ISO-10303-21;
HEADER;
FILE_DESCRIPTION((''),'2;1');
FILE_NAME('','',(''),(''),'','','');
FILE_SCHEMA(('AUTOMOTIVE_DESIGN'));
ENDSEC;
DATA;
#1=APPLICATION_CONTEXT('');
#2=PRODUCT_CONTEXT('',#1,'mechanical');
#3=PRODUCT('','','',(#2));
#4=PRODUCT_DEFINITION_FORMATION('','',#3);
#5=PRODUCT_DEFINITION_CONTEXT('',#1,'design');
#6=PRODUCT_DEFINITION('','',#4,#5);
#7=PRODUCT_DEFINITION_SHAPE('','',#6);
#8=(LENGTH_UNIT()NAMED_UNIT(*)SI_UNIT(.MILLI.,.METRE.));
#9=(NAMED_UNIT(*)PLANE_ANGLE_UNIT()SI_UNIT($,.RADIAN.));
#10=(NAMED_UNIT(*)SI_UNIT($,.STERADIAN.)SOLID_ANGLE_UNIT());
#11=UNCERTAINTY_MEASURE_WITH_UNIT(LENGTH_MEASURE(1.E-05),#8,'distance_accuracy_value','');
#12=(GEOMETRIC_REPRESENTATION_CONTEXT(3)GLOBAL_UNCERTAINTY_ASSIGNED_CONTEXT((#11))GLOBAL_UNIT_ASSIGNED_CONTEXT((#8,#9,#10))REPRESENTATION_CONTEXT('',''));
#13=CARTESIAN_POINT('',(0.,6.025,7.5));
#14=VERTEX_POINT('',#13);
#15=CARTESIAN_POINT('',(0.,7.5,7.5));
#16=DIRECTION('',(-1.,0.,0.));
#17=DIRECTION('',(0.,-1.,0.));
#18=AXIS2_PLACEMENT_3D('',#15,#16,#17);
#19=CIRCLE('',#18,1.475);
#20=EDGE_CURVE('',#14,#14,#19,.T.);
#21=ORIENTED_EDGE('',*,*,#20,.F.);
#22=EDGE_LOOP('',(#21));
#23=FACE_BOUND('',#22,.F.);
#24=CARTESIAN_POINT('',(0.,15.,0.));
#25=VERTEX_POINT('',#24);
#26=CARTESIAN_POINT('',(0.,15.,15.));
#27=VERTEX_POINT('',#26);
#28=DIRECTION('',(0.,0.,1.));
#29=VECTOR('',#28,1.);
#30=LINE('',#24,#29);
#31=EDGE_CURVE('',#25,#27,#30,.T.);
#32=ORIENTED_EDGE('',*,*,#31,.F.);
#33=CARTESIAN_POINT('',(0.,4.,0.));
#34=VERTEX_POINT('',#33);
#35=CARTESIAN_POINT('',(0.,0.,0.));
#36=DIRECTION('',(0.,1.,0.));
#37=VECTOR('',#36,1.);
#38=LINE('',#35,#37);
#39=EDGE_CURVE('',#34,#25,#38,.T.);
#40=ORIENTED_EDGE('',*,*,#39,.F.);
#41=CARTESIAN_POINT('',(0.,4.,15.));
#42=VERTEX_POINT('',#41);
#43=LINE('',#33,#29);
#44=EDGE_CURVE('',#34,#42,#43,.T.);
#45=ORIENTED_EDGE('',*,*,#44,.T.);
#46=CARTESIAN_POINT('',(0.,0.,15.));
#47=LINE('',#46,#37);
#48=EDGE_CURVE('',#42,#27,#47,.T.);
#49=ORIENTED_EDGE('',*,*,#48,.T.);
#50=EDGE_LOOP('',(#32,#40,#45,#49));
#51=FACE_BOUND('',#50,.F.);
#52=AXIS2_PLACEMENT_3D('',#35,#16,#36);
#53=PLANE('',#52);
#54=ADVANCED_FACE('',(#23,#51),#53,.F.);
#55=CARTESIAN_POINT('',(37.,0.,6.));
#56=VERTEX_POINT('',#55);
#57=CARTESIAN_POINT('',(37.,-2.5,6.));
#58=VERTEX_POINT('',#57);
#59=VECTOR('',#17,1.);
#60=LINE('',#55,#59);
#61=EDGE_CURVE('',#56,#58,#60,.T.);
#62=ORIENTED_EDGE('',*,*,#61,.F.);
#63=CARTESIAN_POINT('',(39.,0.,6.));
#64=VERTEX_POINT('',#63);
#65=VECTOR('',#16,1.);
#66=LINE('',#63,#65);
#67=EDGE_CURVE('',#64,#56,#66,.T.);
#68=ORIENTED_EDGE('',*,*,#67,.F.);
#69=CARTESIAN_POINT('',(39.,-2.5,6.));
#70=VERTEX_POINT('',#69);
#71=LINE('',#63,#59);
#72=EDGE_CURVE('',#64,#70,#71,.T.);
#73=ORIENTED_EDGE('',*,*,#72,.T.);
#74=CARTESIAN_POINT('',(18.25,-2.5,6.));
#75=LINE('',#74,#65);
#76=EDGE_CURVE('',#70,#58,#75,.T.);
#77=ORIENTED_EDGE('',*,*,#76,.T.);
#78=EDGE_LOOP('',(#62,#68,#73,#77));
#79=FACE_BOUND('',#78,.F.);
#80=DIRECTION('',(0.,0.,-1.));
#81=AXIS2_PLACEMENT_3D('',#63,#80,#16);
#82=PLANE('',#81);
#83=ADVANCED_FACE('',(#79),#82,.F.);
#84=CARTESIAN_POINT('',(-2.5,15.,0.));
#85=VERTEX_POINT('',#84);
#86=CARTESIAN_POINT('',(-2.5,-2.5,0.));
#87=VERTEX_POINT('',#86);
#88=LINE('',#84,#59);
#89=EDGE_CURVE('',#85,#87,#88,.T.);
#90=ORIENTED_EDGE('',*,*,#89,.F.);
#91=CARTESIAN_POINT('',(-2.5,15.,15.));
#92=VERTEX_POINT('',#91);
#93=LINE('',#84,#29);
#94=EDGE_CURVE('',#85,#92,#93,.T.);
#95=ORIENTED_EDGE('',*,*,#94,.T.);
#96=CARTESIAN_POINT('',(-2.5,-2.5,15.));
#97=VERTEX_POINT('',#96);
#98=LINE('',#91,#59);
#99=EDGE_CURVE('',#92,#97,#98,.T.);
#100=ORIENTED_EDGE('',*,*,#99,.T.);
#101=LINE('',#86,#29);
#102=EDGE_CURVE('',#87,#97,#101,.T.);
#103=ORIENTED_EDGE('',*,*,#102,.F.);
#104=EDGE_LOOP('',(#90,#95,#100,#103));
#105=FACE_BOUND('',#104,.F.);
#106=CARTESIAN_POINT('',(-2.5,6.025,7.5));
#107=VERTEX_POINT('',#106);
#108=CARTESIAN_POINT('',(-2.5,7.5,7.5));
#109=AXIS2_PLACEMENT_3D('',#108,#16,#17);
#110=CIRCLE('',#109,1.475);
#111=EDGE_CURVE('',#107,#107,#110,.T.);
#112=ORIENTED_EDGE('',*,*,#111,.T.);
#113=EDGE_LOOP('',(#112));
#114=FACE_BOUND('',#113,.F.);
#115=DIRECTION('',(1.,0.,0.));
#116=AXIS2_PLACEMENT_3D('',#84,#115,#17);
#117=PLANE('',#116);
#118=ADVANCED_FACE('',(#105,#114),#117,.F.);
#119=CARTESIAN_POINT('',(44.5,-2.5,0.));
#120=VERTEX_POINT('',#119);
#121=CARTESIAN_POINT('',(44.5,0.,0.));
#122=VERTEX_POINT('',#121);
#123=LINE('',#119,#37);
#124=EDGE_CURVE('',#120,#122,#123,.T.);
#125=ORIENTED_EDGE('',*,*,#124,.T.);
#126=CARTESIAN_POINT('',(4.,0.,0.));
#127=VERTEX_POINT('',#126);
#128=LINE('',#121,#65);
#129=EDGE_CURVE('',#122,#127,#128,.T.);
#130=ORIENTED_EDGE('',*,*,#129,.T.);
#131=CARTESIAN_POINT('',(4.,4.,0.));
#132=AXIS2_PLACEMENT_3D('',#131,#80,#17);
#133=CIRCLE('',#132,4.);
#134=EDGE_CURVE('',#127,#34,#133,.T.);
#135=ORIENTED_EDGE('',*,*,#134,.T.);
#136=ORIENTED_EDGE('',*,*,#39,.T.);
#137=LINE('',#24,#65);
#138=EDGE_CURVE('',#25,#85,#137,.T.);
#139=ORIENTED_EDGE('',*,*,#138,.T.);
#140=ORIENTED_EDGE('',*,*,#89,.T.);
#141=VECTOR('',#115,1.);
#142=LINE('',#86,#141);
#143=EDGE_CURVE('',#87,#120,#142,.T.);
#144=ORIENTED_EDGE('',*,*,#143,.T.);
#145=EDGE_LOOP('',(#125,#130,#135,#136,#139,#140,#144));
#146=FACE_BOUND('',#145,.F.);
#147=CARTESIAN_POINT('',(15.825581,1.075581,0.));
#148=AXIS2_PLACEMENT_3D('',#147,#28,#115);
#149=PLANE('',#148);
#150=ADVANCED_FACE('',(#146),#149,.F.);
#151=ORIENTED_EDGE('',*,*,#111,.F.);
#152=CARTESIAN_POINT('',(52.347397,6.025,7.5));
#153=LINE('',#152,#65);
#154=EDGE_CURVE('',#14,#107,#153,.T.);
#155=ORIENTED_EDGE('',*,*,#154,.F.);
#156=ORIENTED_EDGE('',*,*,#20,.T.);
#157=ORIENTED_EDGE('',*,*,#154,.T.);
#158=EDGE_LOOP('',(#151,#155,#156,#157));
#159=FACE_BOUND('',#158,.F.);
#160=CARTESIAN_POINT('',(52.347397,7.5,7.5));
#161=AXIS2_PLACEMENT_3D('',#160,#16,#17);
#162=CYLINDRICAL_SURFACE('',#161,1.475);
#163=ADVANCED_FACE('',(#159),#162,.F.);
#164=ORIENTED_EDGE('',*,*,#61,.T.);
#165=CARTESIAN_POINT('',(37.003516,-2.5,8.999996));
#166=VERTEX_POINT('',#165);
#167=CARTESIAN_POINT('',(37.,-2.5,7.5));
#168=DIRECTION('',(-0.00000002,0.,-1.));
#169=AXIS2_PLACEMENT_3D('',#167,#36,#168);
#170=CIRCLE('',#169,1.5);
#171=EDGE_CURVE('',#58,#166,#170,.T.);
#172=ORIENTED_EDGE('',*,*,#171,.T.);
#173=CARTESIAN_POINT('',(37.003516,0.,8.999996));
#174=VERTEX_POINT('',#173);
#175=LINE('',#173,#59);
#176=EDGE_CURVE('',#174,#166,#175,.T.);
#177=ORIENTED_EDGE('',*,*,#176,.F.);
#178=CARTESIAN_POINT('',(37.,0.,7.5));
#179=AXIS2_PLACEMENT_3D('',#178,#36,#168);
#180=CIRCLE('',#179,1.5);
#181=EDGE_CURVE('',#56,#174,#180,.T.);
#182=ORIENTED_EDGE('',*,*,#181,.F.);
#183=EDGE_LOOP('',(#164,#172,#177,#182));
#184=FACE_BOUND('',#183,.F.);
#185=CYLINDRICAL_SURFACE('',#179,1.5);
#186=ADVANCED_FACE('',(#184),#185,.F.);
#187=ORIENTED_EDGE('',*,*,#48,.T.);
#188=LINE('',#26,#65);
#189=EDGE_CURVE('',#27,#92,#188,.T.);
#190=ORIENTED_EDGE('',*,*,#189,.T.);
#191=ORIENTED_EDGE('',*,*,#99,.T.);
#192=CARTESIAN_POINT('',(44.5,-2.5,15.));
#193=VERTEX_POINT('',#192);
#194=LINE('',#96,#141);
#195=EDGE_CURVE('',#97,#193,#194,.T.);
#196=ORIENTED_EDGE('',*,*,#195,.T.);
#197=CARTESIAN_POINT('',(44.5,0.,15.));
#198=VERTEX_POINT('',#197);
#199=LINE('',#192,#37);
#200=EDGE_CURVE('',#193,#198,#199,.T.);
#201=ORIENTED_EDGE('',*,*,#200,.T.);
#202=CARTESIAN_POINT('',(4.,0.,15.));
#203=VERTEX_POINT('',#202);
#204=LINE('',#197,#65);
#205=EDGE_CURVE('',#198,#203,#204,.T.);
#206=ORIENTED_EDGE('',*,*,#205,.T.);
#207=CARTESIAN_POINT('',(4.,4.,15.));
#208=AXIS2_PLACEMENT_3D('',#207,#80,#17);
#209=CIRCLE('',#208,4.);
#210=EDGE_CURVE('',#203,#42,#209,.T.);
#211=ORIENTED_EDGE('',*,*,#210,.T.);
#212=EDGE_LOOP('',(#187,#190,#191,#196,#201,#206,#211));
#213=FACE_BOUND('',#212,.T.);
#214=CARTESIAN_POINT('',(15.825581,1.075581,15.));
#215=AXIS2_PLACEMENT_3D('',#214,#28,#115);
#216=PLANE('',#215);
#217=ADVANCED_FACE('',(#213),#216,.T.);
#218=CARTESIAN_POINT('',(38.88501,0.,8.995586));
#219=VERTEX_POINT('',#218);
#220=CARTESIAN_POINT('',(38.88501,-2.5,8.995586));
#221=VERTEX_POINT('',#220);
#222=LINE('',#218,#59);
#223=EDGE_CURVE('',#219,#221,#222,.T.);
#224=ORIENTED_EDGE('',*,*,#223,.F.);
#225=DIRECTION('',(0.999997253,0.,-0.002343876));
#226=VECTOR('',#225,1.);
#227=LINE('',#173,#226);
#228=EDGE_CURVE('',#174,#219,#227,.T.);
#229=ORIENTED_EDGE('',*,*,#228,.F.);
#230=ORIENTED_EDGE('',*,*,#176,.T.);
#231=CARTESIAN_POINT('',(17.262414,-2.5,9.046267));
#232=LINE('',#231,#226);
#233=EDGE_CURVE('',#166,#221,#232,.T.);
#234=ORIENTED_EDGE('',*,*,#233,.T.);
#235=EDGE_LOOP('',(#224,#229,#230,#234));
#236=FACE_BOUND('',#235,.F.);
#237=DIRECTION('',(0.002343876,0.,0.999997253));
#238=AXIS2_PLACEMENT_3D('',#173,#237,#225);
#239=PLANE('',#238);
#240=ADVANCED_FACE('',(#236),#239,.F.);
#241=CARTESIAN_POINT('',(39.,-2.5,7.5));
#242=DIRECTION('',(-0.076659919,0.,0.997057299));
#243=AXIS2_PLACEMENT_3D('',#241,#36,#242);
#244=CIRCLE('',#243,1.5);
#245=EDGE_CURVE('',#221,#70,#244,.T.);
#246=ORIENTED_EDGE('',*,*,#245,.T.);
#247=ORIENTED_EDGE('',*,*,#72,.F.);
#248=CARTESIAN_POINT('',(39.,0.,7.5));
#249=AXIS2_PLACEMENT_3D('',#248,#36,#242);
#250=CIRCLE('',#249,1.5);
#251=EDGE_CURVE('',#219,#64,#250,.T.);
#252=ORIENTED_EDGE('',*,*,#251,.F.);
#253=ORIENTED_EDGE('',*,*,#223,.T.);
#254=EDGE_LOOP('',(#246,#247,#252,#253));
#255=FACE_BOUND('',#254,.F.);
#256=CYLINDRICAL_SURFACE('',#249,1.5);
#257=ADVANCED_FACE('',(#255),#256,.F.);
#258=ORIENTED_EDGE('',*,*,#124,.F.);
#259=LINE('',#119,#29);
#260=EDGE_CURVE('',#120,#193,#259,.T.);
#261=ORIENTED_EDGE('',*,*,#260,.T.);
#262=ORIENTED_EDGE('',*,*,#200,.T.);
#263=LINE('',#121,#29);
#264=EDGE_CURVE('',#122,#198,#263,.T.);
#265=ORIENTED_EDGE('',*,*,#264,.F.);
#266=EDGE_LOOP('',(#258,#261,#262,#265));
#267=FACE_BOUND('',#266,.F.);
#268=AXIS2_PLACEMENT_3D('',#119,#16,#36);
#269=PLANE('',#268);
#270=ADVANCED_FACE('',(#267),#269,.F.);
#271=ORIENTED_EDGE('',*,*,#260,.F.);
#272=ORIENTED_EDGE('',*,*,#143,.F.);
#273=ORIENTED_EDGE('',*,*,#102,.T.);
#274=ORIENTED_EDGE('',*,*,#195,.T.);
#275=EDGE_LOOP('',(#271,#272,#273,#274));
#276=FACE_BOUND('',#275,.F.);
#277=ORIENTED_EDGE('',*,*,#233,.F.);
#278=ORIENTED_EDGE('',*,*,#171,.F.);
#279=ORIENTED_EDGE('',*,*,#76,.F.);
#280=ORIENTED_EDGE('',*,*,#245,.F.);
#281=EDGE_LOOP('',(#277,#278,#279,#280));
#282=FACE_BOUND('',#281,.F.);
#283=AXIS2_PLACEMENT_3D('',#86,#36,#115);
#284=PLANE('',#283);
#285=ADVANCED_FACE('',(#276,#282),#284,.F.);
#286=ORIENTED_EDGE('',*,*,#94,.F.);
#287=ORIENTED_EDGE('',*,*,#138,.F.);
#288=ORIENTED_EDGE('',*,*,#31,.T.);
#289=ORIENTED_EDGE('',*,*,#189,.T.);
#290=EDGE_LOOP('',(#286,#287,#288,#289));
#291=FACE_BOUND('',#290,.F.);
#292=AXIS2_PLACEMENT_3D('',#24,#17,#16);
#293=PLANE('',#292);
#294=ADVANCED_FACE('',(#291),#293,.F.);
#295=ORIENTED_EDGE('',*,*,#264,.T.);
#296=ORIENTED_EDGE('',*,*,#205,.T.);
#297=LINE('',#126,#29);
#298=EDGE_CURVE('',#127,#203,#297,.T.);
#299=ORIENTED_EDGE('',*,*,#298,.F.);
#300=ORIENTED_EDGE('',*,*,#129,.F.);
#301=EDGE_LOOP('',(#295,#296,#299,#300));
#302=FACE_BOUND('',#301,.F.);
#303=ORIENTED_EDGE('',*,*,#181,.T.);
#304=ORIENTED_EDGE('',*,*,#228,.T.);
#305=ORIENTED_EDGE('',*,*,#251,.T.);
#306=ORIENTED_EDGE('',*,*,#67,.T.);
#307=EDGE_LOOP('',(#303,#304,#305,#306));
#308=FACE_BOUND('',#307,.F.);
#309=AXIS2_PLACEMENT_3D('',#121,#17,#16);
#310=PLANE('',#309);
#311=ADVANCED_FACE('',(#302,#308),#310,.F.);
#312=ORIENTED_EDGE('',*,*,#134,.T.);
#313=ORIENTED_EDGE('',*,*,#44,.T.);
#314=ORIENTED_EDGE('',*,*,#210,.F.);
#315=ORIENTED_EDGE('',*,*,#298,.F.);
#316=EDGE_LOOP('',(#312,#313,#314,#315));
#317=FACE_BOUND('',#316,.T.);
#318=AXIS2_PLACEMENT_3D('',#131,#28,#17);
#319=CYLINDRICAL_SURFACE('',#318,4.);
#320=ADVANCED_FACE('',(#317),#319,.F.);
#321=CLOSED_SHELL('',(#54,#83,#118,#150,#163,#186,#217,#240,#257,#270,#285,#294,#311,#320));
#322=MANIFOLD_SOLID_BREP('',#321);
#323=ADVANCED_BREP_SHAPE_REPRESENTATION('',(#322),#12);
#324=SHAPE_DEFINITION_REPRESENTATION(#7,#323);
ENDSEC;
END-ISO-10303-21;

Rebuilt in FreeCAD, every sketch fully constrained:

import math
import FreeCAD as App
import Part
import Sketcher
from FreeCAD import Vector
Q = App.Units.Quantity


def edges_at(feature, points):
    """Names of the edges that pass closest to the given points."""
    edges = feature.Shape.Edges
    near = lambda p: min(range(len(edges)), key=lambda i: edges[i].distToShape(Part.Vertex(*p))[0])
    return sorted({f"Edge{near(p) + 1}" for p in points})

doc = App.newDocument("Part")
body = doc.addObject("PartDesign::Body", "Body")

# Sketch on XY plane
sketch1 = body.newObject("Sketcher::SketchObject", "Sketch")
sketch1.AttachmentSupport = (doc.getObject("XY_Plane"), [""])
sketch1.MapMode = "FlatFace"
sketch1.addGeometry(Part.LineSegment(Vector(44.5, 0, 0), Vector(0, 0, 0)), False)
sketch1.addGeometry(Part.LineSegment(Vector(0, 0, 0), Vector(0, 15, 0)), False)
sketch1.addGeometry(Part.LineSegment(Vector(0, 15, 0), Vector(-2.5, 15, 0)), False)
sketch1.addGeometry(Part.LineSegment(Vector(-2.5, 15, 0), Vector(-2.5, -2.5, 0)), False)
sketch1.addGeometry(Part.LineSegment(Vector(-2.5, -2.5, 0), Vector(44.5, -2.5, 0)), False)
sketch1.addGeometry(Part.LineSegment(Vector(44.5, -2.5, 0), Vector(44.5, 0, 0)), False)
sketch1.addConstraint(Sketcher.Constraint("Coincident", 0, 2, 1, 1))
sketch1.addConstraint(Sketcher.Constraint("Coincident", 1, 2, 2, 1))
sketch1.addConstraint(Sketcher.Constraint("Coincident", 2, 2, 3, 1))
sketch1.addConstraint(Sketcher.Constraint("Coincident", 3, 2, 4, 1))
sketch1.addConstraint(Sketcher.Constraint("Coincident", 4, 2, 5, 1))
sketch1.addConstraint(Sketcher.Constraint("Coincident", 5, 2, 0, 1))
sketch1.addConstraint(Sketcher.Constraint("Horizontal", 0))
sketch1.addConstraint(Sketcher.Constraint("Vertical", 1))
sketch1.addConstraint(Sketcher.Constraint("Horizontal", 2))
sketch1.addConstraint(Sketcher.Constraint("Vertical", 3))
sketch1.addConstraint(Sketcher.Constraint("Horizontal", 4))
sketch1.addConstraint(Sketcher.Constraint("Vertical", 5))
sketch1.addConstraint(Sketcher.Constraint("Coincident", 0, 2, -1, 1))
sketch1.addConstraint(Sketcher.Constraint("Equal", 2, 5))
sketch1.addConstraint(Sketcher.Constraint("DistanceX", 4, 1, 4, 2, Q("47 mm")))
sketch1.addConstraint(Sketcher.Constraint("DistanceY", 1, 1, 1, 2, Q("15 mm")))
sketch1.addConstraint(Sketcher.Constraint("DistanceX", 0, 2, 0, 1, Q("44.5 mm")))
pad1 = body.newObject("PartDesign::Pad", "Pad")
pad1.Profile = sketch1
pad1.Length = 15

# Sketch on YZ plane
sketch2 = body.newObject("Sketcher::SketchObject", "Sketch001")
sketch2.AttachmentSupport = (doc.getObject("YZ_Plane"), [""])
sketch2.MapMode = "FlatFace"
sketch2.addGeometry(Part.Circle(Vector(7.5, 7.5, 0), Vector(0, 0, 1), 1.475), False)
sketch2.addConstraint(Sketcher.Constraint("Diameter", 0, Q("2.95 mm")))
sketch2.addConstraint(Sketcher.Constraint("DistanceX", -1, 1, 0, 3, Q("7.5 mm")))
sketch2.addConstraint(Sketcher.Constraint("DistanceY", -1, 1, 0, 3, Q("7.5 mm")))
doc.recompute()
hole = body.newObject("PartDesign::Hole", "Hole")
hole.Profile = sketch2
hole.ThreadType = "None"
hole.Diameter = 2.95
hole.DepthType = "ThroughAll"
doc.recompute()

fillet = body.newObject("PartDesign::Fillet", "Fillet")
fillet.Base = (hole, edges_at(hole, [(0, 0, 7.5)]))
fillet.Radius = 4

# Sketch on XZ plane
sketch3 = body.newObject("Sketcher::SketchObject", "Sketch002")
sketch3.AttachmentSupport = (doc.getObject("XZ_Plane"), [""])
sketch3.MapMode = "FlatFace"
sketch3.addGeometry(Part.LineSegment(Vector(39, 6, 0), Vector(37, 6, 0)), False)
sketch3.addGeometry(Part.ArcOfCircle(Part.Circle(Vector(37, 7.5, 0), Vector(0, 0, 1), 1.5), math.radians(89.8657), math.radians(269.999999)), False)
sketch3.addGeometry(Part.LineSegment(Vector(37.003516, 8.999996, 0), Vector(38.88501, 8.995586, 0)), False)
sketch3.addGeometry(Part.ArcOfCircle(Part.Circle(Vector(39, 7.5, 0), Vector(0, 0, 1), 1.5), math.radians(-89.999995), math.radians(94.396603)), False)
sketch3.addConstraint(Sketcher.Constraint("Tangent", 0, 2, 1, 2))
sketch3.addConstraint(Sketcher.Constraint("Tangent", 1, 1, 2, 1))
sketch3.addConstraint(Sketcher.Constraint("Coincident", 2, 2, 3, 2))
sketch3.addConstraint(Sketcher.Constraint("Tangent", 3, 1, 0, 1))
sketch3.addConstraint(Sketcher.Constraint("Horizontal", 0))
sketch3.addConstraint(Sketcher.Constraint("Equal", 1, 3))
sketch3.addConstraint(Sketcher.Constraint("Radius", 1, Q("1.5 mm")))
sketch3.addConstraint(Sketcher.Constraint("DistanceX", 0, 2, 0, 1, Q("2 mm")))
sketch3.addConstraint(Sketcher.Constraint("DistanceX", -1, 1, 1, 3, Q("37 mm")))
sketch3.addConstraint(Sketcher.Constraint("DistanceY", -1, 1, 0, 2, Q("6 mm")))
sketch3.addConstraint(Sketcher.Constraint("Distance", 2, Q("1.881499 mm")))
pocket1 = body.newObject("PartDesign::Pocket", "Pocket")
pocket1.Profile = sketch3
pocket1.Length = 25
pocket1.Reversed = True

doc.recompute()
